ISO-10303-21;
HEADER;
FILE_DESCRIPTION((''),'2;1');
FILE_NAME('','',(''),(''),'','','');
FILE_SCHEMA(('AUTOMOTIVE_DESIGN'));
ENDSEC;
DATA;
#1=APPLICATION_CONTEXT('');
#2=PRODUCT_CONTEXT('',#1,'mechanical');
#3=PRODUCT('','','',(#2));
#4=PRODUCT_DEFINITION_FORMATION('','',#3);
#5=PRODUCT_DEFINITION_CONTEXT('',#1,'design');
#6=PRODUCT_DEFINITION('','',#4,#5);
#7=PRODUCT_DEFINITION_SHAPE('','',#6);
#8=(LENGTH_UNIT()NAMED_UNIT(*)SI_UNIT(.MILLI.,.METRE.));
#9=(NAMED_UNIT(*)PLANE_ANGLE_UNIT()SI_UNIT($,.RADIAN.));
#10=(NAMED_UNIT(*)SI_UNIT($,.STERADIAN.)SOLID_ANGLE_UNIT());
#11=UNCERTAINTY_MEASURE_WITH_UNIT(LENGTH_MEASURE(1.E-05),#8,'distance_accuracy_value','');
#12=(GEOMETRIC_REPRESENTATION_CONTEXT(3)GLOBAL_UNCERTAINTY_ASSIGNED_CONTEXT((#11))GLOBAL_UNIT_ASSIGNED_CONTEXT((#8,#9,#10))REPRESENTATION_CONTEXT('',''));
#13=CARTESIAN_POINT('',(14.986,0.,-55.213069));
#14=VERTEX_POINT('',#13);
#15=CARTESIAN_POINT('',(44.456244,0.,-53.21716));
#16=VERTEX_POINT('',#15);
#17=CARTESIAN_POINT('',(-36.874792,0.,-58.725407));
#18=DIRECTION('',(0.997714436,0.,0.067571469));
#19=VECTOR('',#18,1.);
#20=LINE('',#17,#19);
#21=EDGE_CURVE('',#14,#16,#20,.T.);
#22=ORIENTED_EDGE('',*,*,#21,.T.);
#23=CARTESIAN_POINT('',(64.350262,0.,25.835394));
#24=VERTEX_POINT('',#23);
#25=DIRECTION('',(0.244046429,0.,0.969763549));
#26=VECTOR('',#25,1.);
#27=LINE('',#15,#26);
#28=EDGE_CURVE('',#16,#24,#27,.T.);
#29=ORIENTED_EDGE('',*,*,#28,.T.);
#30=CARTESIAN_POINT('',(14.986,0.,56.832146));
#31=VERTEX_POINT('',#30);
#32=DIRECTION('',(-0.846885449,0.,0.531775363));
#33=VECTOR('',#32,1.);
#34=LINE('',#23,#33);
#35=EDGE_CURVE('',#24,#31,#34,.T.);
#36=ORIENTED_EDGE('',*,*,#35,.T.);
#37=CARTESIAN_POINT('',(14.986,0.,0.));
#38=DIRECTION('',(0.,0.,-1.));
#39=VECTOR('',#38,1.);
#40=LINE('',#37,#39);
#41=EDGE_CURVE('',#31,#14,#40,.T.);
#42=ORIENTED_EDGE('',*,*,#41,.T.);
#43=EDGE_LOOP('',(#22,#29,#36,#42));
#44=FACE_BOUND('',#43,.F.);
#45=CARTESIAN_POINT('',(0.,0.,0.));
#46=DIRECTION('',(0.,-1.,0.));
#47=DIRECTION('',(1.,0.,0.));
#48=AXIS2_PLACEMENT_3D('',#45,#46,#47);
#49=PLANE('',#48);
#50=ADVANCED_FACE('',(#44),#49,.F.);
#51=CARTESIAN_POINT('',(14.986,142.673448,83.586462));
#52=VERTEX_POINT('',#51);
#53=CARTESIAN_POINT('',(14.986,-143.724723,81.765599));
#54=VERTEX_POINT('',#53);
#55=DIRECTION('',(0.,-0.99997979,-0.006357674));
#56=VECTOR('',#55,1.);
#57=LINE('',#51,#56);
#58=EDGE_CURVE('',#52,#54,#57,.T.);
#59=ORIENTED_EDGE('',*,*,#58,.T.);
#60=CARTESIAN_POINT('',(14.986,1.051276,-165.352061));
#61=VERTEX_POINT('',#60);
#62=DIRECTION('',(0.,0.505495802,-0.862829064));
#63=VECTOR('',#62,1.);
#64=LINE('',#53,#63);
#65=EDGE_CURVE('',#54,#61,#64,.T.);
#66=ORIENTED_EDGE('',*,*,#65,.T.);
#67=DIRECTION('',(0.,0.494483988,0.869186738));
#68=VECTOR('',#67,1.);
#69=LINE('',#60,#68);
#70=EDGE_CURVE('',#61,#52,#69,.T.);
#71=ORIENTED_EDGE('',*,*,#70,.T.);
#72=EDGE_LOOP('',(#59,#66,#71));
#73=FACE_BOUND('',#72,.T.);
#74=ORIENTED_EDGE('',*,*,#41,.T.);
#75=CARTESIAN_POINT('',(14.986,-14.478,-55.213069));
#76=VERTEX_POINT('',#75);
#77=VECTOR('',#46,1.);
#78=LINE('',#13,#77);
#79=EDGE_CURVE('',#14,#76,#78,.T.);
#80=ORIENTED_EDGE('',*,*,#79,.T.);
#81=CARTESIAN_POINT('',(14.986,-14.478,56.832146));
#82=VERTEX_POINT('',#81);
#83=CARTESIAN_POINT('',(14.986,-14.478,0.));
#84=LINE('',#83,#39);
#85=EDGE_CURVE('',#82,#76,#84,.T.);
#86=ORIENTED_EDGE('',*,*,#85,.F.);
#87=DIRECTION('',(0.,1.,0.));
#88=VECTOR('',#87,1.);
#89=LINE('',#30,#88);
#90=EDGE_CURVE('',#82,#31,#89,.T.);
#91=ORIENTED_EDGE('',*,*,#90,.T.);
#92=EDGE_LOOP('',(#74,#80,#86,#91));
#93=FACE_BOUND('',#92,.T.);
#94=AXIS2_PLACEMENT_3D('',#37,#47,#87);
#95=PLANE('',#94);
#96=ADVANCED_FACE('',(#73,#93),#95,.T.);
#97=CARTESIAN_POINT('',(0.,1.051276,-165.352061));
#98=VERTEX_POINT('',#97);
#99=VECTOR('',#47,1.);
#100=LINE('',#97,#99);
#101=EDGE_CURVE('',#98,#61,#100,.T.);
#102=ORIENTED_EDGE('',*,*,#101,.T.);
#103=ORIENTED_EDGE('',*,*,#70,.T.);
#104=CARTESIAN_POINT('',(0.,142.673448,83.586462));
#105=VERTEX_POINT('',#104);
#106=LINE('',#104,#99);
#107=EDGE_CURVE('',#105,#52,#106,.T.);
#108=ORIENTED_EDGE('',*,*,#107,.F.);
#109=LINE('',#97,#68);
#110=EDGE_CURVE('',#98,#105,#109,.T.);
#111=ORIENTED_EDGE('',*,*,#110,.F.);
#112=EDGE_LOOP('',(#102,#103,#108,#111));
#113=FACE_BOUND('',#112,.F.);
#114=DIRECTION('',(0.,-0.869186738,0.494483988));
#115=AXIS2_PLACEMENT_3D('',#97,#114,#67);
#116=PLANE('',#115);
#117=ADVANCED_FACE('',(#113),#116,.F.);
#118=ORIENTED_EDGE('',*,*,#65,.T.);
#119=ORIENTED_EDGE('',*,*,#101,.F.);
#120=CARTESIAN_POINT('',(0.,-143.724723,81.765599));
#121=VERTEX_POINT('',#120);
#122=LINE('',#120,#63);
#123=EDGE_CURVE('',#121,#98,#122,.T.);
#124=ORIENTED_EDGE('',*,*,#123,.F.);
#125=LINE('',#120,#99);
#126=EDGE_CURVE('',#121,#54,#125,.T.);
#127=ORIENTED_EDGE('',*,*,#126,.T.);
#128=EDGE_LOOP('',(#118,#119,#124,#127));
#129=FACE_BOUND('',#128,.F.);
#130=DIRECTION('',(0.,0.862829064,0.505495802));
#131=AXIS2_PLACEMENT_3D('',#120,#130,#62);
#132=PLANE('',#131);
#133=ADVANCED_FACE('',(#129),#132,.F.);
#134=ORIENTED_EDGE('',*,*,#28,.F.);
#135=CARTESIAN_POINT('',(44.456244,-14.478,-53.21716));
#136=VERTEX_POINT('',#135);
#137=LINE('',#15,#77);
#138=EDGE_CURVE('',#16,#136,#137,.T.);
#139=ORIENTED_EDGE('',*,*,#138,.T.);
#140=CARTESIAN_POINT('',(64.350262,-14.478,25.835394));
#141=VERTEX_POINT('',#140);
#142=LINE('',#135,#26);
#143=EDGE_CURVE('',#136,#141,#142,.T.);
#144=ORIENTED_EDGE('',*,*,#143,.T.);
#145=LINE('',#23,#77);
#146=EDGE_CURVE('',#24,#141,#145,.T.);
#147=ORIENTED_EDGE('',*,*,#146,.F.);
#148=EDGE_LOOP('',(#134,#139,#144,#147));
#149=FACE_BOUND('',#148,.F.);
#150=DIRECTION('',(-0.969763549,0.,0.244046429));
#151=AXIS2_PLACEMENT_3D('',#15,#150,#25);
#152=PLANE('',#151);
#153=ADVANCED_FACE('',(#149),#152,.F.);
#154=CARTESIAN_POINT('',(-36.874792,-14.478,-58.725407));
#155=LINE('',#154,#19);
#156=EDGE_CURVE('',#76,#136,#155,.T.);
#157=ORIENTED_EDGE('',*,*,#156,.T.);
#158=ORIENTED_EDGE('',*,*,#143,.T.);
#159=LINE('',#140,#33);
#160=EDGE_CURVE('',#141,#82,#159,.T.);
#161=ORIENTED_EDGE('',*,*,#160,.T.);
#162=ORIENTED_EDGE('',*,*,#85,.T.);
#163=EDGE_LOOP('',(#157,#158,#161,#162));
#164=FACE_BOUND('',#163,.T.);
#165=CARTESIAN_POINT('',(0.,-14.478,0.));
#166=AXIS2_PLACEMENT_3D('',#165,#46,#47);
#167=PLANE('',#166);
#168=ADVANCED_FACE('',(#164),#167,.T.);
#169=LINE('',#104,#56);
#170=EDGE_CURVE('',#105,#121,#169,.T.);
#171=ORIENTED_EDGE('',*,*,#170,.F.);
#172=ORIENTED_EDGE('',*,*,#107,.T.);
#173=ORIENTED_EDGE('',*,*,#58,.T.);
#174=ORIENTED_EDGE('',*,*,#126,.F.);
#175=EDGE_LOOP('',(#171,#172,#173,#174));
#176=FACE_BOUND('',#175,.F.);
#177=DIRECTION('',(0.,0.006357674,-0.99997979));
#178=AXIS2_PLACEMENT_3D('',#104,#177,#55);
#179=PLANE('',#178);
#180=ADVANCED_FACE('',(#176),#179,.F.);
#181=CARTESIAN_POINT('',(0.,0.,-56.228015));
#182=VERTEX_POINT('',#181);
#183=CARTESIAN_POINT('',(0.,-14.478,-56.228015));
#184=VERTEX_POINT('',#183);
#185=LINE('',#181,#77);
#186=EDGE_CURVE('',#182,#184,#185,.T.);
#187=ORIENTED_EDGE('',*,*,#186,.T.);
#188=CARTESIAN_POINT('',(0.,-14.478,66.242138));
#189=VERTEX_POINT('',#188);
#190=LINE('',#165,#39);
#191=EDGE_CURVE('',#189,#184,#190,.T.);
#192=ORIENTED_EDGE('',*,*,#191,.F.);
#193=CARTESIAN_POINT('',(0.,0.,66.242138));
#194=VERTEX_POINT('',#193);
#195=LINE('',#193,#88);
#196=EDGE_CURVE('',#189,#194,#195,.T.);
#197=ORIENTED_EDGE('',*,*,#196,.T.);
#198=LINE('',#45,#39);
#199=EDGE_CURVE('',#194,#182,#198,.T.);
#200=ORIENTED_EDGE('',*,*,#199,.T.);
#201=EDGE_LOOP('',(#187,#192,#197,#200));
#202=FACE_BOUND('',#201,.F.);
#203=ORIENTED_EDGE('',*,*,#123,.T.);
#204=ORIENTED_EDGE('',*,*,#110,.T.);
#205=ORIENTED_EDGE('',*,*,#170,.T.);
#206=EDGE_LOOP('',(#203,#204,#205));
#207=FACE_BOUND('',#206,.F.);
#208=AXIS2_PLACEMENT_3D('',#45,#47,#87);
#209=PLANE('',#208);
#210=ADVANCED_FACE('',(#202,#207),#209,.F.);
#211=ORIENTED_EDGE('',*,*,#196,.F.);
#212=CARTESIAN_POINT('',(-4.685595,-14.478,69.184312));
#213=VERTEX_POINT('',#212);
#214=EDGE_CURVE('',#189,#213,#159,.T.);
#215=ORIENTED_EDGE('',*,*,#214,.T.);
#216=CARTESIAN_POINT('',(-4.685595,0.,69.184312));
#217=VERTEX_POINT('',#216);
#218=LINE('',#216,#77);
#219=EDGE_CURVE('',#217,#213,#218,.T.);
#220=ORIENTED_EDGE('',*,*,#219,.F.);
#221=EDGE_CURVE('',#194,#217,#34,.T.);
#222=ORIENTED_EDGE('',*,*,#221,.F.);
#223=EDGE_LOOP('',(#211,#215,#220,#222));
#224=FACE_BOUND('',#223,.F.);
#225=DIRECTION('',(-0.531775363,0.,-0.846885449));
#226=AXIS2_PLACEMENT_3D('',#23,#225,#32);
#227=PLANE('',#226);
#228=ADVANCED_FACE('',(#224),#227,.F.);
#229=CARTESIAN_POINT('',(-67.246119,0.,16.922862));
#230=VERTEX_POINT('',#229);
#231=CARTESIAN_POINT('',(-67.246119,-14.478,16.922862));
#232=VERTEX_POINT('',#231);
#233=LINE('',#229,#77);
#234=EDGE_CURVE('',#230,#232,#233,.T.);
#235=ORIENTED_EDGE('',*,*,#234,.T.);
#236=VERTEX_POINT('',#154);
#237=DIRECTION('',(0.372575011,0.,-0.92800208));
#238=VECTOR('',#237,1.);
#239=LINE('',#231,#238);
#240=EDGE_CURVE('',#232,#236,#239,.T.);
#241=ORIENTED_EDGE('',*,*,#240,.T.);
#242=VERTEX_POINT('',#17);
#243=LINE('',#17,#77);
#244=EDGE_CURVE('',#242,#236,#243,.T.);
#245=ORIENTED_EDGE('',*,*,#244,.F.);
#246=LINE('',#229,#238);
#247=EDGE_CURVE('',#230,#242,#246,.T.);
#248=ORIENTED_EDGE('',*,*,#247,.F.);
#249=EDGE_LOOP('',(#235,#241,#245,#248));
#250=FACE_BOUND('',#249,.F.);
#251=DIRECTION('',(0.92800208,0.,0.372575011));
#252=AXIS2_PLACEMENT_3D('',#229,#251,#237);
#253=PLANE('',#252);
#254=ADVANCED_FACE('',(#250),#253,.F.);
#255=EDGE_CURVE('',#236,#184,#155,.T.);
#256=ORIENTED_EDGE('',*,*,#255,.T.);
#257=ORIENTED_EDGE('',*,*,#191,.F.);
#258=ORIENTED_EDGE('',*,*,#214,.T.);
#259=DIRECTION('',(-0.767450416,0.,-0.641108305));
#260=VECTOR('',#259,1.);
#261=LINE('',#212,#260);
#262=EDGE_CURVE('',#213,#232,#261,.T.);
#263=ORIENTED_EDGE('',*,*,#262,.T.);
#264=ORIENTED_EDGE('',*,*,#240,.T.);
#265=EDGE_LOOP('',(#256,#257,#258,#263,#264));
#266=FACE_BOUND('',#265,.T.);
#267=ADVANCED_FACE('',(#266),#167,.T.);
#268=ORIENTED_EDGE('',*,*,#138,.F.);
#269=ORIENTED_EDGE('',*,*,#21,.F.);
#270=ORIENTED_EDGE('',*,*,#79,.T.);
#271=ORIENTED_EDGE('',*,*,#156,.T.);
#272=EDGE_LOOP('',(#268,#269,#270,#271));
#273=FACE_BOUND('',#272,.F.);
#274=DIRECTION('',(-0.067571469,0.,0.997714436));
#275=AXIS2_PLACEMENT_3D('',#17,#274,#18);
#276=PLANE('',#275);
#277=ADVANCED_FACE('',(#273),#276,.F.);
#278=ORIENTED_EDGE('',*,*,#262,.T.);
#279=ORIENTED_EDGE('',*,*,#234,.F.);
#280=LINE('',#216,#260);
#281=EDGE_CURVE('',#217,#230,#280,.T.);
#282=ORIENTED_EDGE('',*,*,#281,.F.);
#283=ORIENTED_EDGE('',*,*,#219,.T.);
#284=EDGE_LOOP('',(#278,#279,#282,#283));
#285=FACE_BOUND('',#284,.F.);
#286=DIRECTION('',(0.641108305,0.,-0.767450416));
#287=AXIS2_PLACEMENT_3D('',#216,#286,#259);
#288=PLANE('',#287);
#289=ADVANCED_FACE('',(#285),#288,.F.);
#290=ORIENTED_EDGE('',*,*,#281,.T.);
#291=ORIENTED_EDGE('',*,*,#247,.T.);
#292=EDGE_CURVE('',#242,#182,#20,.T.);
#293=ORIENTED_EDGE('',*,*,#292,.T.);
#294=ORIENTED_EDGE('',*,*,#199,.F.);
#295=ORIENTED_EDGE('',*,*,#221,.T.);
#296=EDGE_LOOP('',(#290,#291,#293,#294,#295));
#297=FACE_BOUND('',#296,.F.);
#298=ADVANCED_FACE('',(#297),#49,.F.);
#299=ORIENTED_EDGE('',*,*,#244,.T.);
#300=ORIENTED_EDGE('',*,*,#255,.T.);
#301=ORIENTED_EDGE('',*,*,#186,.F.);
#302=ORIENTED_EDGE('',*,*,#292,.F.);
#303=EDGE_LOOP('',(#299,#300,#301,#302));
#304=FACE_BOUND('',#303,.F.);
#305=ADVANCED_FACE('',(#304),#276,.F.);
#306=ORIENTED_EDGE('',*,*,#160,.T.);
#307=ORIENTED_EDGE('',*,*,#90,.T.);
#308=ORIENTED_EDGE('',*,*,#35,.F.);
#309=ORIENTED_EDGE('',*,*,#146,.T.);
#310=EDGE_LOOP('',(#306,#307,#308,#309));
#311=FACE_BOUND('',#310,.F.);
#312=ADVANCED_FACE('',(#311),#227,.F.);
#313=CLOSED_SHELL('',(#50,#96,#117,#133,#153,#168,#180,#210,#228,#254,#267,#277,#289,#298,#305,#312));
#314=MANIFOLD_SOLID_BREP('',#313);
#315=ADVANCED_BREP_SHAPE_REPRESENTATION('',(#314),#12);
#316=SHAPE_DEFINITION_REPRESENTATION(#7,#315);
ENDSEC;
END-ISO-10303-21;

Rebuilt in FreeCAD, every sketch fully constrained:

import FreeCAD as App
import Part
import Sketcher
Q = App.Units.Quantity


def add_polygon(sketch, points):
    """Adds a closed chain of lines whose ends are joined by coincident constraints."""
    first, n = sketch.GeometryCount, len(points)
    for a, b in zip(points, points[1:] + points[:1]):
        sketch.addGeometry(Part.LineSegment(App.Vector(*a, 0), App.Vector(*b, 0)), False)
    for i in range(n):
        sketch.addConstraint(Sketcher.Constraint("Coincident", first + i, 2, first + (i + 1) % n, 1))

doc = App.newDocument("Part")
body = doc.addObject("PartDesign::Body", "Body")

# Sketch on YZ plane
sketch1 = body.newObject("Sketcher::SketchObject", "Sketch")
sketch1.AttachmentSupport = (doc.getObject("YZ_Plane"), [""])
sketch1.MapMode = "FlatFace"
add_polygon(sketch1, [(-143.724723, 81.765599), (1.051276, -165.352061), (142.673448, 83.586462)])  # lines 0-2
sketch1.addConstraint(Sketcher.Constraint("Equal", 0, 1))
sketch1.addConstraint(Sketcher.Constraint("Equal", 1, 2))
sketch1.addConstraint(Sketcher.Constraint("DistanceY", -1, 1, 2, 2, 81.765599))
sketch1.addConstraint(Sketcher.Constraint("DistanceX", 2, 2, 0, 2, 144.775999))
sketch1.addConstraint(Sketcher.Constraint("Distance", 0, 286.403959))
sketch1.addConstraint(Sketcher.Constraint("DistanceX", -1, 1, 1, 2, 142.673448))
pad1 = body.newObject("PartDesign::Pad", "Pad")
pad1.Profile = sketch1
pad1.Length = Q("0.59 in")

# Sketch on XZ plane
sketch2 = body.newObject("Sketcher::SketchObject", "Sketch001")
sketch2.AttachmentSupport = (doc.getObject("XZ_Plane"), [""])
sketch2.MapMode = "FlatFace"
add_polygon(sketch2, [(44.456244, -53.21716), (64.350262, 25.835394), (-4.685595, 69.184312), (-67.246119, 16.922862), (-36.874792, -58.725407)])  # lines 0-4
sketch2.addConstraint(Sketcher.Constraint("Equal", 0, 1))
sketch2.addConstraint(Sketcher.Constraint("Equal", 1, 2))
sketch2.addConstraint(Sketcher.Constraint("Equal", 2, 3))
sketch2.addConstraint(Sketcher.Constraint("Equal", 3, 4))
sketch2.addConstraint(Sketcher.Constraint("DistanceY", 3, 2, 0, 2, 84.560801))
sketch2.addConstraint(Sketcher.Constraint("Distance", 0, 81.517349))
sketch2.addConstraint(Sketcher.Constraint("DistanceX", -1, 1, 0, 2, 64.350262))
sketch2.addConstraint(Sketcher.Constraint("DistanceX", 2, 2, -1, 1, 67.246119))
sketch2.addConstraint(Sketcher.Constraint("DistanceY", -1, 1, 2, 2, 16.922862))
sketch2.addConstraint(Sketcher.Constraint("DistanceY", 4, 2, -1, 1, 53.21716))
pad2 = body.newObject("PartDesign::Pad", "Pad001")
pad2.Profile = sketch2
pad2.Length = Q("0.57 in")

doc.recompute()
